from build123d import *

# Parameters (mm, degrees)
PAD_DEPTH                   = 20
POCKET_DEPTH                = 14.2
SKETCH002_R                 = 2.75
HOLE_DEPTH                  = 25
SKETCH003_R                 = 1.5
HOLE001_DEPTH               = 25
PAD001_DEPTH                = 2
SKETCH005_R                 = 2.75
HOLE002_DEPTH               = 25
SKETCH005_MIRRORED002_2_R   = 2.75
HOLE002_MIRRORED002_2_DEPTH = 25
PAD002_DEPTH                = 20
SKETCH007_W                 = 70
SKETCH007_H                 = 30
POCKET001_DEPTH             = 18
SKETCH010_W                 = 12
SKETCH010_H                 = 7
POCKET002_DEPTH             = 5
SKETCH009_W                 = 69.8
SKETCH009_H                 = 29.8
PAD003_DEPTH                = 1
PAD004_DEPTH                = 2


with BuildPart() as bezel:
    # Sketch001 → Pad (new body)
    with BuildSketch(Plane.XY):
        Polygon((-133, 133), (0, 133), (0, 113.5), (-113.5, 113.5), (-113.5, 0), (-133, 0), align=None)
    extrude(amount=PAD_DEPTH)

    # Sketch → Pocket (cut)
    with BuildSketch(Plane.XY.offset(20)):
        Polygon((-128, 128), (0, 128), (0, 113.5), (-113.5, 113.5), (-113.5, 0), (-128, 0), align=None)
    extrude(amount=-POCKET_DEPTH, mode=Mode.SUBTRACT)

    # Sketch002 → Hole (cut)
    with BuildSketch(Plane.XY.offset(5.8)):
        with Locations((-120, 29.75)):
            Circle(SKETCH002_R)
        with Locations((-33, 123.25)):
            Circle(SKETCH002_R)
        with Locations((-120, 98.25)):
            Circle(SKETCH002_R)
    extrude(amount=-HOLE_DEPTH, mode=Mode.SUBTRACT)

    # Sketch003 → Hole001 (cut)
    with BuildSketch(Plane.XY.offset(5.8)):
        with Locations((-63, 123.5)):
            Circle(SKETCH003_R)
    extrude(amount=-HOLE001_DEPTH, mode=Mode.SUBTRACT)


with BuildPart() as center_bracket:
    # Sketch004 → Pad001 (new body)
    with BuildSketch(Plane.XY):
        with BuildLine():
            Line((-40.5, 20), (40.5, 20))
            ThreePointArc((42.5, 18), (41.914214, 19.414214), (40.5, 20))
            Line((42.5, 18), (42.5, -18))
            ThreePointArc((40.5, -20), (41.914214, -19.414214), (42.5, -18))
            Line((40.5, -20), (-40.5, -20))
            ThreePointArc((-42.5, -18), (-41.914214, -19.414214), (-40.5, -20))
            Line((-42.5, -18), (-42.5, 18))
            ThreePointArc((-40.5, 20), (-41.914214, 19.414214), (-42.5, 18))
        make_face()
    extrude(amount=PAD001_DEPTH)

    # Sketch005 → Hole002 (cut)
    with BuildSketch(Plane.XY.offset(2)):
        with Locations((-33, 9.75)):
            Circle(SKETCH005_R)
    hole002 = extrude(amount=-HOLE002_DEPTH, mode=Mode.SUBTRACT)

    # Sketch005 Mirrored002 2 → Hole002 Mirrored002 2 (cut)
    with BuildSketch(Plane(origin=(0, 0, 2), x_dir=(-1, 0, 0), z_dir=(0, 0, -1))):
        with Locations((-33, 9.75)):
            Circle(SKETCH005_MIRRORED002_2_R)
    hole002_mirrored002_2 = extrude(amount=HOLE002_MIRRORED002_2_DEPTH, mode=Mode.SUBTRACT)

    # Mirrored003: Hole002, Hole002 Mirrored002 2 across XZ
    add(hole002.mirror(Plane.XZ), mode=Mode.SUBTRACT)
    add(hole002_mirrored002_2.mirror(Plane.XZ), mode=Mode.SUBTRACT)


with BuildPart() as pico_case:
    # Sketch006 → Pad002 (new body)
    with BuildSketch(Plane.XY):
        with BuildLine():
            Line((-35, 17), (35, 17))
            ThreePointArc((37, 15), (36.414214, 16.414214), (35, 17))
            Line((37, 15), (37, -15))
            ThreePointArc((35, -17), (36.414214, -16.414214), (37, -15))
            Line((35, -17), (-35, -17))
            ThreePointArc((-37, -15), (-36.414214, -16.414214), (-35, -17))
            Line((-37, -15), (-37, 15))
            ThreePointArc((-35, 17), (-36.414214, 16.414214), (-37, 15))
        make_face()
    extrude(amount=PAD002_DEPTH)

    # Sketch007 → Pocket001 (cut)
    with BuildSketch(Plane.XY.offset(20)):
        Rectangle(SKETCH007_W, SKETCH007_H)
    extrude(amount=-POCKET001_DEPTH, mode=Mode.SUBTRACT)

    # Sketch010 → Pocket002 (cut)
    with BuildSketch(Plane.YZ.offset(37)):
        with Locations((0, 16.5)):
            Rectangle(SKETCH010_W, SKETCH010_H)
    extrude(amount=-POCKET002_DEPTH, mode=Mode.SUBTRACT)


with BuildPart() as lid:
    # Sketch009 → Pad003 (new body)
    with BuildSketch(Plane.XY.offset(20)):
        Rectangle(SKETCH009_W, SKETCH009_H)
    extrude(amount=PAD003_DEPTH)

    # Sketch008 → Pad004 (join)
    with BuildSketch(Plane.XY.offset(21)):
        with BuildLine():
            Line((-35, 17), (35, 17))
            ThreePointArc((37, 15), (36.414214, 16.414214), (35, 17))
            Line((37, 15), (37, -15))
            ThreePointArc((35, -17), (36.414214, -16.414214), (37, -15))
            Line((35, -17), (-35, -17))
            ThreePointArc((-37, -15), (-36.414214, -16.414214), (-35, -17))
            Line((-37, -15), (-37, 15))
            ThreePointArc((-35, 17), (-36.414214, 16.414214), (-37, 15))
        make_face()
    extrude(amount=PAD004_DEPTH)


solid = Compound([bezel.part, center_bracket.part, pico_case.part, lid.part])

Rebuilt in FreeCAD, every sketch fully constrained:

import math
import FreeCAD as App
import Part
import Sketcher

V = App.Vector


def add_polygon(sketch, points):
    """Adds a closed chain of lines whose ends are joined by coincident constraints."""
    first, n = sketch.GeometryCount, len(points)
    for a, b in zip(points, points[1:] + points[:1]):
        sketch.addGeometry(Part.LineSegment(App.Vector(*a, 0), App.Vector(*b, 0)), False)
    for i in range(n):
        sketch.addConstraint(Sketcher.Constraint("Coincident", first + i, 2, first + (i + 1) % n, 1))

doc = App.newDocument("Part")
params = doc.addObject("Spreadsheet::Sheet", "Params")
for row, (alias, value) in enumerate([
    ("sketch1_width", "133 mm"),
    ("sketch1_width2", "19.5 mm"),
    ("pad1_length", "20 mm"),
    ("sketch2_width", "128 mm"),
    ("sketch2_width2", "14.5 mm"),
    ("pocket1_length", "14.2 mm"),
    ("sketch3_diameter", "5.5 mm"),
    ("pocket2_length", "25 mm"),
    ("sketch4_diameter", "3 mm"),
    ("pocket3_length", "25 mm"),
    ("sketch5_radius", "1.999999 mm"),
    ("sketch5_width", "81 mm"),
    ("sketch5_height", "36 mm"),
    ("pad2_length", "2 mm"),
    ("sketch6_diameter", "5.5 mm"),
    ("pocket4_length", "25 mm"),
    ("sketch7_diameter", "5.5 mm"),
    ("pocket5_length", "25 mm"),
    ("sketch8_radius", "1.999999 mm"),
    ("sketch8_width", "70 mm"),
    ("sketch8_height", "30 mm"),
    ("pad3_length", "20 mm"),
    ("sketch9_width", "70 mm"),
    ("sketch9_height", "30 mm"),
    ("pocket6_length", "18 mm"),
    ("sketch10_width", "12 mm"),
    ("sketch10_height", "7 mm"),
    ("pocket7_length", "5 mm"),
    ("sketch11_width", "69.8 mm"),
    ("sketch11_height", "29.8 mm"),
    ("pad4_length", "1 mm"),
    ("sketch12_radius", "1.999999 mm"),
    ("sketch12_width", "70 mm"),
    ("sketch12_height", "30 mm"),
    ("pad5_length", "2 mm"),
], start=1):
    params.set(f"A{row}", alias)
    params.set(f"B{row}", "=" + value)
    params.setAlias(f"B{row}", alias)

body = doc.addObject("PartDesign::Body", "Body")

# Sketch on XY plane
sketch1 = body.newObject("Sketcher::SketchObject", "Sketch")
sketch1.AttachmentSupport = (doc.getObject("XY_Plane"), [""])
sketch1.MapMode = "FlatFace"
add_polygon(sketch1, [(0, 133), (-133, 133), (-133, 0), (-113.5, 0), (-113.5, 113.5), (0, 113.5)])  # lines 0-5
sketch1.addConstraint([
    Sketcher.Constraint("Horizontal", 0),
    Sketcher.Constraint("Vertical", 1),
    Sketcher.Constraint("Horizontal", 2),
    Sketcher.Constraint("Vertical", 3),
    Sketcher.Constraint("Horizontal", 4),
    Sketcher.Constraint("Vertical", 5),
    Sketcher.Constraint("PointOnObject", 1, 2, -1),
    Sketcher.Constraint("PointOnObject", 4, 2, -2),
    Sketcher.Constraint("Equal", 0, 1),
    Sketcher.Constraint("Equal", 4, 3),
    Sketcher.Constraint("DistanceX", 0, 2, 0, 1, 133.0),
    Sketcher.Constraint("DistanceX", 2, 1, 2, 2, 19.5),
])
sketch1.setExpression("Constraints[16]", "Params.sketch1_width")
sketch1.setExpression("Constraints[17]", "Params.sketch1_width2")
pad1 = body.newObject("PartDesign::Pad", "Pad")
pad1.Profile = sketch1
pad1.setExpression("Length", "Params.pad1_length")

# Sketch on XY plane
sketch2 = body.newObject("Sketcher::SketchObject", "Sketch001")
sketch2.AttachmentSupport = (doc.getObject("XY_Plane"), [""])
sketch2.MapMode = "FlatFace"
sketch2.AttachmentOffset = App.Placement(V(0, 0, 20), App.Rotation())
add_polygon(sketch2, [(0, 128), (-128, 128), (-128, 0), (-113.5, 0), (-113.5, 113.5), (0, 113.5)])  # lines 0-5
sketch2.addConstraint([
    Sketcher.Constraint("Horizontal", 0),
    Sketcher.Constraint("Vertical", 1),
    Sketcher.Constraint("Horizontal", 2),
    Sketcher.Constraint("Vertical", 3),
    Sketcher.Constraint("Horizontal", 4),
    Sketcher.Constraint("Vertical", 5),
    Sketcher.Constraint("PointOnObject", 1, 2, -1),
    Sketcher.Constraint("PointOnObject", 4, 2, -2),
    Sketcher.Constraint("Equal", 0, 1),
    Sketcher.Constraint("Equal", 4, 3),
    Sketcher.Constraint("DistanceX", 0, 2, 0, 1, 128.0),
    Sketcher.Constraint("DistanceX", 2, 1, 2, 2, 14.5),
])
sketch2.setExpression("Constraints[16]", "Params.sketch2_width")
sketch2.setExpression("Constraints[17]", "Params.sketch2_width2")
pocket1 = body.newObject("PartDesign::Pocket", "Pocket")
pocket1.Profile = sketch2
pocket1.setExpression("Length", "Params.pocket1_length")

# Sketch on XY plane
sketch3 = body.newObject("Sketcher::SketchObject", "Sketch002")
sketch3.AttachmentSupport = (doc.getObject("XY_Plane"), [""])
sketch3.MapMode = "FlatFace"
sketch3.AttachmentOffset = App.Placement(V(0, 0, 5.8), App.Rotation())
sketch3.addGeometry([
    Part.Circle(V(-120, 29.75, 0), V(0, 0, 1), 2.75),
    Part.Circle(V(-33, 123.25, 0), V(0, 0, 1), 2.75),
    Part.Circle(V(-120, 98.25, 0), V(0, 0, 1), 2.75),
], False)
sketch3.addConstraint([
    Sketcher.Constraint("Equal", 0, 1),
    Sketcher.Constraint("Equal", 1, 2),
    Sketcher.Constraint("Vertical", 0, 3, 2, 3),
    Sketcher.Constraint("Diameter", 0, 5.5),
    Sketcher.Constraint("DistanceX", 0, 3, -1, 1, 120.0),
    Sketcher.Constraint("DistanceX", 1, 3, -1, 1, 33.0),
    Sketcher.Constraint("DistanceY", 2, 3, 1, 3, 25.0),
    Sketcher.Constraint("DistanceY", 0, 3, 1, 3, 93.5),
    Sketcher.Constraint("DistanceY", -1, 1, 0, 3, 29.75),
])
sketch3.setExpression("Constraints[3]", "Params.sketch3_diameter")
pocket2 = body.newObject("PartDesign::Pocket", "Pocket001")
pocket2.Profile = sketch3
pocket2.setExpression("Length", "Params.pocket2_length")

# Sketch on XY plane
sketch4 = body.newObject("Sketcher::SketchObject", "Sketch003")
sketch4.AttachmentSupport = (doc.getObject("XY_Plane"), [""])
sketch4.MapMode = "FlatFace"
sketch4.AttachmentOffset = App.Placement(V(0, 0, 5.8), App.Rotation())
sketch4.addGeometry(Part.Circle(V(-63, 123.5, 0), V(0, 0, 1), 1.5), False)
sketch4.addConstraint([
    Sketcher.Constraint("Diameter", 0, 3.0),
    Sketcher.Constraint("DistanceX", 0, 3, -1, 1, 63.0),
    Sketcher.Constraint("DistanceY", -1, 1, 0, 3, 123.5),
])
sketch4.setExpression("Constraints[0]", "Params.sketch4_diameter")
pocket3 = body.newObject("PartDesign::Pocket", "Pocket002")
pocket3.Profile = sketch4
pocket3.setExpression("Length", "Params.pocket3_length")
body2 = doc.addObject("PartDesign::Body", "Body001")

# Sketch on XY plane
sketch5 = body2.newObject("Sketcher::SketchObject", "Sketch004")
sketch5.AttachmentSupport = (doc.getObject("XY_Plane001"), [""])
sketch5.MapMode = "FlatFace"
sketch5.addGeometry([
    Part.LineSegment(V(40.5, 20, 0), V(-40.5, 20, 0)),  # 0
    Part.ArcOfCircle(Part.Circle(V(-40.500001, 18.000001, 0), V(0, 0, 1), 1.999999), math.radians(89.999957), math.radians(180.000043)),  # 1
    Part.LineSegment(V(-42.5, 18, 0), V(-42.5, -18, 0)),  # 2
    Part.ArcOfCircle(Part.Circle(V(-40.500001, -18.000001, 0), V(0, 0, 1), 1.999999), math.radians(179.999957), math.radians(270.000043)),  # 3
    Part.LineSegment(V(-40.5, -20, 0), V(40.5, -20, 0)),  # 4
    Part.ArcOfCircle(Part.Circle(V(40.500001, -18.000001, 0), V(0, 0, 1), 1.999999), math.radians(-90.000043), math.radians(0.000043)),  # 5
    Part.LineSegment(V(42.5, -18, 0), V(42.5, 18, 0)),  # 6
    Part.ArcOfCircle(Part.Circle(V(40.500001, 18.000001, 0), V(0, 0, 1), 1.999999), math.radians(-0.000043), math.radians(90.000043)),  # 7
], False)
sketch5.addConstraint([
    Sketcher.Constraint("Tangent", 0, 2, 1, 1),
    Sketcher.Constraint("Tangent", 1, 2, 2, 1),
    Sketcher.Constraint("Tangent", 2, 2, 3, 1),
    Sketcher.Constraint("Tangent", 3, 2, 4, 1),
    Sketcher.Constraint("Tangent", 4, 2, 5, 1),
    Sketcher.Constraint("Tangent", 5, 2, 6, 1),
    Sketcher.Constraint("Tangent", 6, 2, 7, 1),
    Sketcher.Constraint("Tangent", 7, 2, 0, 1),
    Sketcher.Constraint("Horizontal", 0),
    Sketcher.Constraint("Vertical", 2),
    Sketcher.Constraint("Horizontal", 4),
    Sketcher.Constraint("Vertical", 6),
    Sketcher.Constraint("Equal", 1, 3),
    Sketcher.Constraint("Equal", 3, 5),
    Sketcher.Constraint("Equal", 5, 7),
    Sketcher.Constraint("Symmetric", 1, 3, 5, 3, -1, 1),
    Sketcher.Constraint("Radius", 1, 1.999999),
    Sketcher.Constraint("DistanceX", 0, 2, 0, 1, 81.0),
    Sketcher.Constraint("DistanceY", 2, 2, 2, 1, 36.0),
])
sketch5.setExpression("Constraints[16]", "Params.sketch5_radius")
sketch5.setExpression("Constraints[17]", "Params.sketch5_width")
sketch5.setExpression("Constraints[18]", "Params.sketch5_height")
pad2 = body2.newObject("PartDesign::Pad", "Pad001")
pad2.Profile = sketch5
pad2.setExpression("Length", "Params.pad2_length")

# Sketch on XY plane
sketch6 = body2.newObject("Sketcher::SketchObject", "Sketch005")
sketch6.AttachmentSupport = (doc.getObject("XY_Plane001"), [""])
sketch6.MapMode = "FlatFace"
sketch6.AttachmentOffset = App.Placement(V(0, 0, 2), App.Rotation())
sketch6.addGeometry(Part.Circle(V(-33, 9.75, 0), V(0, 0, 1), 2.75), False)
sketch6.addConstraint([
    Sketcher.Constraint("Diameter", 0, 5.5),
    Sketcher.Constraint("DistanceX", 0, 3, -1, 1, 33.0),
    Sketcher.Constraint("DistanceY", -1, 1, 0, 3, 9.75),
])
sketch6.setExpression("Constraints[0]", "Params.sketch6_diameter")
pocket4 = body2.newObject("PartDesign::Pocket", "Pocket003")
pocket4.Profile = sketch6
pocket4.setExpression("Length", "Params.pocket4_length")

# Sketch on XY plane
sketch7 = body2.newObject("Sketcher::SketchObject", "Sketch006")
sketch7.AttachmentSupport = (doc.getObject("XY_Plane001"), [""])
sketch7.MapMode = "FlatFace"
sketch7.AttachmentOffset = App.Placement(V(0, 0, 2), App.Rotation())
sketch7.addGeometry(Part.Circle(V(33, 9.75, 0), V(0, 0, 1), 2.75), False)
sketch7.addConstraint([
    Sketcher.Constraint("Diameter", 0, 5.5),
    Sketcher.Constraint("DistanceX", -1, 1, 0, 3, 33.0),
    Sketcher.Constraint("DistanceY", -1, 1, 0, 3, 9.75),
])
sketch7.setExpression("Constraints[0]", "Params.sketch7_diameter")
pocket5 = body2.newObject("PartDesign::Pocket", "Pocket004")
pocket5.Profile = sketch7
pocket5.setExpression("Length", "Params.pocket5_length")
doc.recompute()

mirrored = body2.newObject("PartDesign::Mirrored", "Mirrored")
mirrored.Originals = [pocket4, pocket5]
mirrored.MirrorPlane = (doc.getObject("XZ_Plane001"), [""])
body2.Tip = mirrored
body3 = doc.addObject("PartDesign::Body", "Body002")

# Sketch on XY plane
sketch8 = body3.newObject("Sketcher::SketchObject", "Sketch007")
sketch8.AttachmentSupport = (doc.getObject("XY_Plane002"), [""])
sketch8.MapMode = "FlatFace"
sketch8.addGeometry([
    Part.LineSegment(V(35, 17, 0), V(-35, 17, 0)),  # 0
    Part.ArcOfCircle(Part.Circle(V(-35.000001, 15.000001, 0), V(0, 0, 1), 1.999999), math.radians(89.999957), math.radians(180.000043)),  # 1
    Part.LineSegment(V(-37, 15, 0), V(-37, -15, 0)),  # 2
    Part.ArcOfCircle(Part.Circle(V(-35.000001, -15.000001, 0), V(0, 0, 1), 1.999999), math.radians(179.999957), math.radians(270.000043)),  # 3
    Part.LineSegment(V(-35, -17, 0), V(35, -17, 0)),  # 4
    Part.ArcOfCircle(Part.Circle(V(35.000001, -15.000001, 0), V(0, 0, 1), 1.999999), math.radians(-90.000043), math.radians(0.000043)),  # 5
    Part.LineSegment(V(37, -15, 0), V(37, 15, 0)),  # 6
    Part.ArcOfCircle(Part.Circle(V(35.000001, 15.000001, 0), V(0, 0, 1), 1.999999), math.radians(-0.000043), math.radians(90.000043)),  # 7
], False)
sketch8.addConstraint([
    Sketcher.Constraint("Tangent", 0, 2, 1, 1),
    Sketcher.Constraint("Tangent", 1, 2, 2, 1),
    Sketcher.Constraint("Tangent", 2, 2, 3, 1),
    Sketcher.Constraint("Tangent", 3, 2, 4, 1),
    Sketcher.Constraint("Tangent", 4, 2, 5, 1),
    Sketcher.Constraint("Tangent", 5, 2, 6, 1),
    Sketcher.Constraint("Tangent", 6, 2, 7, 1),
    Sketcher.Constraint("Tangent", 7, 2, 0, 1),
    Sketcher.Constraint("Horizontal", 0),
    Sketcher.Constraint("Vertical", 2),
    Sketcher.Constraint("Horizontal", 4),
    Sketcher.Constraint("Vertical", 6),
    Sketcher.Constraint("Equal", 1, 3),
    Sketcher.Constraint("Equal", 3, 5),
    Sketcher.Constraint("Equal", 5, 7),
    Sketcher.Constraint("Symmetric", 1, 3, 5, 3, -1, 1),
    Sketcher.Constraint("Radius", 1, 1.999999),
    Sketcher.Constraint("DistanceX", 0, 2, 0, 1, 70.0),
    Sketcher.Constraint("DistanceY", 2, 2, 2, 1, 30.0),
])
sketch8.setExpression("Constraints[16]", "Params.sketch8_radius")
sketch8.setExpression("Constraints[17]", "Params.sketch8_width")
sketch8.setExpression("Constraints[18]", "Params.sketch8_height")
pad3 = body3.newObject("PartDesign::Pad", "Pad002")
pad3.Profile = sketch8
pad3.setExpression("Length", "Params.pad3_length")

# Sketch on XY plane
sketch9 = body3.newObject("Sketcher::SketchObject", "Sketch008")
sketch9.AttachmentSupport = (doc.getObject("XY_Plane002"), [""])
sketch9.MapMode = "FlatFace"
sketch9.AttachmentOffset = App.Placement(V(0, 0, 20), App.Rotation())
add_polygon(sketch9, [(-35, 15), (-35, -15), (35, -15), (35, 15)])  # lines 0-3
sketch9.addConstraint([
    Sketcher.Constraint("Vertical", 0),
    Sketcher.Constraint("Horizontal", 1),
    Sketcher.Constraint("Vertical", 2),
    Sketcher.Constraint("Horizontal", 3),
    Sketcher.Constraint("Symmetric", 0, 2, 2, 2, -1, 1),
    Sketcher.Constraint("DistanceX", 1, 1, 1, 2, 70.0),
    Sketcher.Constraint("DistanceY", 0, 2, 0, 1, 30.0),
])
sketch9.setExpression("Constraints[9]", "Params.sketch9_width")
sketch9.setExpression("Constraints[10]", "Params.sketch9_height")
pocket6 = body3.newObject("PartDesign::Pocket", "Pocket005")
pocket6.Profile = sketch9
pocket6.setExpression("Length", "Params.pocket6_length")

# Sketch on YZ plane
sketch10 = body3.newObject("Sketcher::SketchObject", "Sketch009")
sketch10.AttachmentSupport = (doc.getObject("YZ_Plane002"), [""])
sketch10.MapMode = "FlatFace"
sketch10.AttachmentOffset = App.Placement(V(0, 0, 37), App.Rotation())
add_polygon(sketch10, [(-6, 20), (-6, 13), (6, 13), (6, 20)])  # lines 0-3
sketch10.addConstraint([
    Sketcher.Constraint("Vertical", 0),
    Sketcher.Constraint("Horizontal", 1),
    Sketcher.Constraint("Vertical", 2),
    Sketcher.Constraint("Horizontal", 3),
    Sketcher.Constraint("DistanceX", 1, 1, 1, 2, 12.0),
    Sketcher.Constraint("DistanceY", 0, 2, 0, 1, 7.0),
    Sketcher.Constraint("DistanceX", 0, 2, -1, 1, 6.0),
    Sketcher.Constraint("DistanceY", -1, 1, 0, 2, 13.0),
])
sketch10.setExpression("Constraints[8]", "Params.sketch10_width")
sketch10.setExpression("Constraints[9]", "Params.sketch10_height")
pocket7 = body3.newObject("PartDesign::Pocket", "Pocket006")
pocket7.Profile = sketch10
pocket7.setExpression("Length", "Params.pocket7_length")
body4 = doc.addObject("PartDesign::Body", "Body003")

# Sketch on XY plane
sketch11 = body4.newObject("Sketcher::SketchObject", "Sketch010")
sketch11.AttachmentSupport = (doc.getObject("XY_Plane003"), [""])
sketch11.MapMode = "FlatFace"
sketch11.AttachmentOffset = App.Placement(V(0, 0, 20), App.Rotation())
add_polygon(sketch11, [(-34.9, 14.9), (-34.9, -14.9), (34.9, -14.9), (34.9, 14.9)])  # lines 0-3
sketch11.addConstraint([
    Sketcher.Constraint("Vertical", 0),
    Sketcher.Constraint("Horizontal", 1),
    Sketcher.Constraint("Vertical", 2),
    Sketcher.Constraint("Horizontal", 3),
    Sketcher.Constraint("Symmetric", 0, 2, 2, 2, -1, 1),
    Sketcher.Constraint("DistanceX", 1, 1, 1, 2, 69.8),
    Sketcher.Constraint("DistanceY", 0, 2, 0, 1, 29.8),
])
sketch11.setExpression("Constraints[9]", "Params.sketch11_width")
sketch11.setExpression("Constraints[10]", "Params.sketch11_height")
pad4 = body4.newObject("PartDesign::Pad", "Pad003")
pad4.Profile = sketch11
pad4.setExpression("Length", "Params.pad4_length")

# Sketch on XY plane
sketch12 = body4.newObject("Sketcher::SketchObject", "Sketch011")
sketch12.AttachmentSupport = (doc.getObject("XY_Plane003"), [""])
sketch12.MapMode = "FlatFace"
sketch12.AttachmentOffset = App.Placement(V(0, 0, 21), App.Rotation())
sketch12.addGeometry([
    Part.LineSegment(V(35, 17, 0), V(-35, 17, 0)),  # 0
    Part.ArcOfCircle(Part.Circle(V(-35.000001, 15.000001, 0), V(0, 0, 1), 1.999999), math.radians(89.999957), math.radians(180.000043)),  # 1
    Part.LineSegment(V(-37, 15, 0), V(-37, -15, 0)),  # 2
    Part.ArcOfCircle(Part.Circle(V(-35.000001, -15.000001, 0), V(0, 0, 1), 1.999999), math.radians(179.999957), math.radians(270.000043)),  # 3
    Part.LineSegment(V(-35, -17, 0), V(35, -17, 0)),  # 4
    Part.ArcOfCircle(Part.Circle(V(35.000001, -15.000001, 0), V(0, 0, 1), 1.999999), math.radians(-90.000043), math.radians(0.000043)),  # 5
    Part.LineSegment(V(37, -15, 0), V(37, 15, 0)),  # 6
    Part.ArcOfCircle(Part.Circle(V(35.000001, 15.000001, 0), V(0, 0, 1), 1.999999), math.radians(-0.000043), math.radians(90.000043)),  # 7
], False)
sketch12.addConstraint([
    Sketcher.Constraint("Tangent", 0, 2, 1, 1),
    Sketcher.Constraint("Tangent", 1, 2, 2, 1),
    Sketcher.Constraint("Tangent", 2, 2, 3, 1),
    Sketcher.Constraint("Tangent", 3, 2, 4, 1),
    Sketcher.Constraint("Tangent", 4, 2, 5, 1),
    Sketcher.Constraint("Tangent", 5, 2, 6, 1),
    Sketcher.Constraint("Tangent", 6, 2, 7, 1),
    Sketcher.Constraint("Tangent", 7, 2, 0, 1),
    Sketcher.Constraint("Horizontal", 0),
    Sketcher.Constraint("Vertical", 2),
    Sketcher.Constraint("Horizontal", 4),
    Sketcher.Constraint("Vertical", 6),
    Sketcher.Constraint("Equal", 1, 3),
    Sketcher.Constraint("Equal", 3, 5),
    Sketcher.Constraint("Equal", 5, 7),
    Sketcher.Constraint("Symmetric", 1, 3, 5, 3, -1, 1),
    Sketcher.Constraint("Radius", 1, 1.999999),
    Sketcher.Constraint("DistanceX", 0, 2, 0, 1, 70.0),
    Sketcher.Constraint("DistanceY", 2, 2, 2, 1, 30.0),
])
sketch12.setExpression("Constraints[16]", "Params.sketch12_radius")
sketch12.setExpression("Constraints[17]", "Params.sketch12_width")
sketch12.setExpression("Constraints[18]", "Params.sketch12_height")
pad5 = body4.newObject("PartDesign::Pad", "Pad004")
pad5.Profile = sketch12
pad5.setExpression("Length", "Params.pad5_length")

doc.recompute()
